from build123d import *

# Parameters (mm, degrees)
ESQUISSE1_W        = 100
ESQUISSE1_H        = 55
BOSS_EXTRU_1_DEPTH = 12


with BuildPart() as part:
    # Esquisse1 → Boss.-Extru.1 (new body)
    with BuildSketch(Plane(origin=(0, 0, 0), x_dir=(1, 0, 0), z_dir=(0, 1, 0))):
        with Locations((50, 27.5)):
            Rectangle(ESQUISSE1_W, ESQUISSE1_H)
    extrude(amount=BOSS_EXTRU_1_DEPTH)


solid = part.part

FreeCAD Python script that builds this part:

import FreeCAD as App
import Part
import Sketcher

V = App.Vector
Q = App.Units.Quantity

doc = App.newDocument("Part")
body = doc.addObject("PartDesign::Body", "Body")

sketch1 = doc.addObject("Sketcher::SketchObject", "Sketch")
body.addObject(sketch1)
sketch1.AttachmentSupport = (doc.XZ_Plane, [""])
sketch1.MapMode = "FlatFace"
sketch1.addGeometry(Part.LineSegment(V(0, -55, 0), V(0, 0, 0)), False)
sketch1.addGeometry(Part.LineSegment(V(0, 0, 0), V(100, 0, 0)), False)
sketch1.addGeometry(Part.LineSegment(V(100, 0, 0), V(100, -55, 0)), False)
sketch1.addGeometry(Part.LineSegment(V(100, -55, 0), V(0, -55, 0)), False)
sketch1.addConstraint(Sketcher.Constraint("Coincident", 0, 2, 1, 1))
sketch1.addConstraint(Sketcher.Constraint("Coincident", 1, 2, 2, 1))
sketch1.addConstraint(Sketcher.Constraint("Coincident", 2, 2, 3, 1))
sketch1.addConstraint(Sketcher.Constraint("Coincident", 3, 2, 0, 1))
sketch1.addConstraint(Sketcher.Constraint("Vertical", 0))
sketch1.addConstraint(Sketcher.Constraint("Horizontal", 1))
sketch1.addConstraint(Sketcher.Constraint("Vertical", 2))
sketch1.addConstraint(Sketcher.Constraint("Horizontal", 3))
sketch1.addConstraint(Sketcher.Constraint("Coincident", 0, 2, -1, 1))
sketch1.addConstraint(Sketcher.Constraint("DistanceX", 1, 1, 1, 2, Q("100 mm")))
sketch1.addConstraint(Sketcher.Constraint("DistanceY", 0, 1, 0, 2, Q("55 mm")))
pad1 = doc.addObject("PartDesign::Pad", "Pad")
body.addObject(pad1)
pad1.Profile = sketch1
pad1.Length = 12
pad1.Reversed = True

doc.recompute()
